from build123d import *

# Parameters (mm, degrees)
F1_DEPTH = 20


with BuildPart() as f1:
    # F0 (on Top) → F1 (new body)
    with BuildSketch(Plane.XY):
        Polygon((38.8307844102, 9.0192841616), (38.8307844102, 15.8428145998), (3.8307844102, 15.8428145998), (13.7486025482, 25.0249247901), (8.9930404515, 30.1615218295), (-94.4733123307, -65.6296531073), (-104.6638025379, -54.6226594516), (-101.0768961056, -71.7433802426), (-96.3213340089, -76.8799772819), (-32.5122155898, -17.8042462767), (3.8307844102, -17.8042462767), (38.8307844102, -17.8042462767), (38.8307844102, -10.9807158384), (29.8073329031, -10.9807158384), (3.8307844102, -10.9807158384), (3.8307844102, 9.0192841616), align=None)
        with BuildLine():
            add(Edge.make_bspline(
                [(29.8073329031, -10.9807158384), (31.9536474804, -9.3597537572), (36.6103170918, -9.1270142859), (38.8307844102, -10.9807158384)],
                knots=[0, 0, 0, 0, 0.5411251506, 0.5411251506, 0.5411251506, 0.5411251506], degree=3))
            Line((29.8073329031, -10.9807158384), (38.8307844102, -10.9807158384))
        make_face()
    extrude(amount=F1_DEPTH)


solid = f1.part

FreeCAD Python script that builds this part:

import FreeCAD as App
import Part
import Sketcher

V = App.Vector
Q = App.Units.Quantity

doc = App.newDocument("Part")
body = doc.addObject("PartDesign::Body", "Body")

# Sketch on XY plane
sketch1 = body.newObject("Sketcher::SketchObject", "Sketch")
sketch1.AttachmentSupport = (doc.getObject("XY_Plane"), [""])
sketch1.MapMode = "FlatFace"
sketch1.addGeometry(Part.LineSegment(V(38.830784, 9.019284, 0), V(38.830784, 15.842815, 0)), False)
sketch1.addGeometry(Part.LineSegment(V(38.830784, 15.842815, 0), V(3.830784, 15.842815, 0)), False)
sketch1.addGeometry(Part.LineSegment(V(3.830784, 15.842815, 0), V(13.748603, 25.024925, 0)), False)
sketch1.addGeometry(Part.LineSegment(V(13.748603, 25.024925, 0), V(8.99304, 30.161522, 0)), False)
sketch1.addGeometry(Part.LineSegment(V(8.99304, 30.161522, 0), V(-94.473312, -65.629653, 0)), False)
sketch1.addGeometry(Part.LineSegment(V(-94.473312, -65.629653, 0), V(-104.663803, -54.622659, 0)), False)
sketch1.addGeometry(Part.LineSegment(V(-104.663803, -54.622659, 0), V(-101.076896, -71.74338, 0)), False)
sketch1.addGeometry(Part.LineSegment(V(-101.076896, -71.74338, 0), V(-96.321334, -76.879977, 0)), False)
sketch1.addGeometry(Part.LineSegment(V(-96.321334, -76.879977, 0), V(-32.512216, -17.804246, 0)), False)
sketch1.addGeometry(Part.LineSegment(V(-32.512216, -17.804246, 0), V(38.830784, -17.804246, 0)), False)
sketch1.addGeometry(Part.LineSegment(V(38.830784, -17.804246, 0), V(38.830784, -10.980716, 0)), False)
sketch1.addGeometry(Part.BSplineCurve([V(29.807333, -10.980716, 0), V(31.953647, -9.359754, 0), V(36.610317, -9.127014, 0), V(38.830784, -10.980716, 0)], [4, 4], [0, 0.541125151], False, 3, [1, 1, 1, 1], False), False)
sketch1.addGeometry(Part.LineSegment(V(29.807333, -10.980716, 0), V(3.830784, -10.980716, 0)), False)
sketch1.addGeometry(Part.LineSegment(V(3.830784, -10.980716, 0), V(3.830784, 9.019284, 0)), False)
sketch1.addGeometry(Part.LineSegment(V(3.830784, 9.019284, 0), V(38.830784, 9.019284, 0)), False)
sketch1.addConstraint(Sketcher.Constraint("Block", 11))
sketch1.addConstraint(Sketcher.Constraint("Coincident", 0, 2, 1, 1))
sketch1.addConstraint(Sketcher.Constraint("Coincident", 1, 2, 2, 1))
sketch1.addConstraint(Sketcher.Constraint("Coincident", 2, 2, 3, 1))
sketch1.addConstraint(Sketcher.Constraint("Coincident", 3, 2, 4, 1))
sketch1.addConstraint(Sketcher.Constraint("Coincident", 4, 2, 5, 1))
sketch1.addConstraint(Sketcher.Constraint("Coincident", 5, 2, 6, 1))
sketch1.addConstraint(Sketcher.Constraint("Coincident", 6, 2, 7, 1))
sketch1.addConstraint(Sketcher.Constraint("Coincident", 7, 2, 8, 1))
sketch1.addConstraint(Sketcher.Constraint("Coincident", 8, 2, 9, 1))
sketch1.addConstraint(Sketcher.Constraint("Coincident", 9, 2, 10, 1))
sketch1.addConstraint(Sketcher.Constraint("Coincident", 10, 2, 11, 2))
sketch1.addConstraint(Sketcher.Constraint("Coincident", 11, 1, 12, 1))
sketch1.addConstraint(Sketcher.Constraint("Coincident", 12, 2, 13, 1))
sketch1.addConstraint(Sketcher.Constraint("Coincident", 13, 2, 14, 1))
sketch1.addConstraint(Sketcher.Constraint("Coincident", 14, 2, 0, 1))
sketch1.addConstraint(Sketcher.Constraint("Vertical", 0))
sketch1.addConstraint(Sketcher.Constraint("Horizontal", 1))
sketch1.addConstraint(Sketcher.Constraint("Horizontal", 9))
sketch1.addConstraint(Sketcher.Constraint("Vertical", 10))
sketch1.addConstraint(Sketcher.Constraint("Horizontal", 12))
sketch1.addConstraint(Sketcher.Constraint("Vertical", 13))
sketch1.addConstraint(Sketcher.Constraint("Horizontal", 14))
sketch1.addConstraint(Sketcher.Constraint("DistanceX", 1, 2, 1, 1, Q("35 mm")))
sketch1.addConstraint(Sketcher.Constraint("DistanceX", 14, 1, 14, 2, Q("35 mm")))
sketch1.addConstraint(Sketcher.Constraint("DistanceY", 13, 1, 13, 2, Q("20 mm")))
sketch1.addConstraint(Sketcher.Constraint("Distance", 3, Q("7 mm")))
sketch1.addConstraint(Sketcher.Constraint("Distance", 5, Q("15 mm")))
sketch1.addConstraint(Sketcher.Constraint("Distance", 7, Q("7 mm")))
sketch1.addConstraint(Sketcher.Constraint("DistanceX", 1, 2, 9, 2, Q("35 mm")))
sketch1.addConstraint(Sketcher.Constraint("DistanceX", 9, 1, 9, 2, Q("71.343 mm")))
sketch1.addConstraint(Sketcher.Constraint("DistanceY", 0, 1, 0, 2, Q("6.82353 mm")))
sketch1.addConstraint(Sketcher.Constraint("DistanceY", 10, 1, 10, 2, Q("6.82353 mm")))
sketch1.addConstraint(Sketcher.Constraint("DistanceX", 6, 2, 2, 2, Q("114.825499 mm")))
sketch1.addConstraint(Sketcher.Constraint("DistanceX", -1, 1, 3, 2, Q("8.99304 mm")))
sketch1.addConstraint(Sketcher.Constraint("DistanceY", -1, 1, 3, 2, Q("30.161522 mm")))
sketch1.addConstraint(Sketcher.Constraint("DistanceY", 5, 2, -1, 1, Q("54.622659 mm")))
sketch1.addConstraint(Sketcher.Constraint("DistanceY", 6, 2, -1, 1, Q("71.74338 mm")))
sketch1.addConstraint(Sketcher.Constraint("DistanceX", 1, 2, 2, 2, Q("9.917818 mm")))
sketch1.addConstraint(Sketcher.Constraint("DistanceX", 5, 2, 4, 2, Q("10.19049 mm")))
sketch1.addConstraint(Sketcher.Constraint("DistanceX", 7, 2, 4, 2, Q("1.848022 mm")))
sketch1.addConstraint(Sketcher.Constraint("DistanceX", 7, 2, 1, 2, Q("100.152118 mm")))
pad1 = body.newObject("PartDesign::Pad", "Pad")
pad1.Profile = sketch1
pad1.Length = 20

doc.recompute()
